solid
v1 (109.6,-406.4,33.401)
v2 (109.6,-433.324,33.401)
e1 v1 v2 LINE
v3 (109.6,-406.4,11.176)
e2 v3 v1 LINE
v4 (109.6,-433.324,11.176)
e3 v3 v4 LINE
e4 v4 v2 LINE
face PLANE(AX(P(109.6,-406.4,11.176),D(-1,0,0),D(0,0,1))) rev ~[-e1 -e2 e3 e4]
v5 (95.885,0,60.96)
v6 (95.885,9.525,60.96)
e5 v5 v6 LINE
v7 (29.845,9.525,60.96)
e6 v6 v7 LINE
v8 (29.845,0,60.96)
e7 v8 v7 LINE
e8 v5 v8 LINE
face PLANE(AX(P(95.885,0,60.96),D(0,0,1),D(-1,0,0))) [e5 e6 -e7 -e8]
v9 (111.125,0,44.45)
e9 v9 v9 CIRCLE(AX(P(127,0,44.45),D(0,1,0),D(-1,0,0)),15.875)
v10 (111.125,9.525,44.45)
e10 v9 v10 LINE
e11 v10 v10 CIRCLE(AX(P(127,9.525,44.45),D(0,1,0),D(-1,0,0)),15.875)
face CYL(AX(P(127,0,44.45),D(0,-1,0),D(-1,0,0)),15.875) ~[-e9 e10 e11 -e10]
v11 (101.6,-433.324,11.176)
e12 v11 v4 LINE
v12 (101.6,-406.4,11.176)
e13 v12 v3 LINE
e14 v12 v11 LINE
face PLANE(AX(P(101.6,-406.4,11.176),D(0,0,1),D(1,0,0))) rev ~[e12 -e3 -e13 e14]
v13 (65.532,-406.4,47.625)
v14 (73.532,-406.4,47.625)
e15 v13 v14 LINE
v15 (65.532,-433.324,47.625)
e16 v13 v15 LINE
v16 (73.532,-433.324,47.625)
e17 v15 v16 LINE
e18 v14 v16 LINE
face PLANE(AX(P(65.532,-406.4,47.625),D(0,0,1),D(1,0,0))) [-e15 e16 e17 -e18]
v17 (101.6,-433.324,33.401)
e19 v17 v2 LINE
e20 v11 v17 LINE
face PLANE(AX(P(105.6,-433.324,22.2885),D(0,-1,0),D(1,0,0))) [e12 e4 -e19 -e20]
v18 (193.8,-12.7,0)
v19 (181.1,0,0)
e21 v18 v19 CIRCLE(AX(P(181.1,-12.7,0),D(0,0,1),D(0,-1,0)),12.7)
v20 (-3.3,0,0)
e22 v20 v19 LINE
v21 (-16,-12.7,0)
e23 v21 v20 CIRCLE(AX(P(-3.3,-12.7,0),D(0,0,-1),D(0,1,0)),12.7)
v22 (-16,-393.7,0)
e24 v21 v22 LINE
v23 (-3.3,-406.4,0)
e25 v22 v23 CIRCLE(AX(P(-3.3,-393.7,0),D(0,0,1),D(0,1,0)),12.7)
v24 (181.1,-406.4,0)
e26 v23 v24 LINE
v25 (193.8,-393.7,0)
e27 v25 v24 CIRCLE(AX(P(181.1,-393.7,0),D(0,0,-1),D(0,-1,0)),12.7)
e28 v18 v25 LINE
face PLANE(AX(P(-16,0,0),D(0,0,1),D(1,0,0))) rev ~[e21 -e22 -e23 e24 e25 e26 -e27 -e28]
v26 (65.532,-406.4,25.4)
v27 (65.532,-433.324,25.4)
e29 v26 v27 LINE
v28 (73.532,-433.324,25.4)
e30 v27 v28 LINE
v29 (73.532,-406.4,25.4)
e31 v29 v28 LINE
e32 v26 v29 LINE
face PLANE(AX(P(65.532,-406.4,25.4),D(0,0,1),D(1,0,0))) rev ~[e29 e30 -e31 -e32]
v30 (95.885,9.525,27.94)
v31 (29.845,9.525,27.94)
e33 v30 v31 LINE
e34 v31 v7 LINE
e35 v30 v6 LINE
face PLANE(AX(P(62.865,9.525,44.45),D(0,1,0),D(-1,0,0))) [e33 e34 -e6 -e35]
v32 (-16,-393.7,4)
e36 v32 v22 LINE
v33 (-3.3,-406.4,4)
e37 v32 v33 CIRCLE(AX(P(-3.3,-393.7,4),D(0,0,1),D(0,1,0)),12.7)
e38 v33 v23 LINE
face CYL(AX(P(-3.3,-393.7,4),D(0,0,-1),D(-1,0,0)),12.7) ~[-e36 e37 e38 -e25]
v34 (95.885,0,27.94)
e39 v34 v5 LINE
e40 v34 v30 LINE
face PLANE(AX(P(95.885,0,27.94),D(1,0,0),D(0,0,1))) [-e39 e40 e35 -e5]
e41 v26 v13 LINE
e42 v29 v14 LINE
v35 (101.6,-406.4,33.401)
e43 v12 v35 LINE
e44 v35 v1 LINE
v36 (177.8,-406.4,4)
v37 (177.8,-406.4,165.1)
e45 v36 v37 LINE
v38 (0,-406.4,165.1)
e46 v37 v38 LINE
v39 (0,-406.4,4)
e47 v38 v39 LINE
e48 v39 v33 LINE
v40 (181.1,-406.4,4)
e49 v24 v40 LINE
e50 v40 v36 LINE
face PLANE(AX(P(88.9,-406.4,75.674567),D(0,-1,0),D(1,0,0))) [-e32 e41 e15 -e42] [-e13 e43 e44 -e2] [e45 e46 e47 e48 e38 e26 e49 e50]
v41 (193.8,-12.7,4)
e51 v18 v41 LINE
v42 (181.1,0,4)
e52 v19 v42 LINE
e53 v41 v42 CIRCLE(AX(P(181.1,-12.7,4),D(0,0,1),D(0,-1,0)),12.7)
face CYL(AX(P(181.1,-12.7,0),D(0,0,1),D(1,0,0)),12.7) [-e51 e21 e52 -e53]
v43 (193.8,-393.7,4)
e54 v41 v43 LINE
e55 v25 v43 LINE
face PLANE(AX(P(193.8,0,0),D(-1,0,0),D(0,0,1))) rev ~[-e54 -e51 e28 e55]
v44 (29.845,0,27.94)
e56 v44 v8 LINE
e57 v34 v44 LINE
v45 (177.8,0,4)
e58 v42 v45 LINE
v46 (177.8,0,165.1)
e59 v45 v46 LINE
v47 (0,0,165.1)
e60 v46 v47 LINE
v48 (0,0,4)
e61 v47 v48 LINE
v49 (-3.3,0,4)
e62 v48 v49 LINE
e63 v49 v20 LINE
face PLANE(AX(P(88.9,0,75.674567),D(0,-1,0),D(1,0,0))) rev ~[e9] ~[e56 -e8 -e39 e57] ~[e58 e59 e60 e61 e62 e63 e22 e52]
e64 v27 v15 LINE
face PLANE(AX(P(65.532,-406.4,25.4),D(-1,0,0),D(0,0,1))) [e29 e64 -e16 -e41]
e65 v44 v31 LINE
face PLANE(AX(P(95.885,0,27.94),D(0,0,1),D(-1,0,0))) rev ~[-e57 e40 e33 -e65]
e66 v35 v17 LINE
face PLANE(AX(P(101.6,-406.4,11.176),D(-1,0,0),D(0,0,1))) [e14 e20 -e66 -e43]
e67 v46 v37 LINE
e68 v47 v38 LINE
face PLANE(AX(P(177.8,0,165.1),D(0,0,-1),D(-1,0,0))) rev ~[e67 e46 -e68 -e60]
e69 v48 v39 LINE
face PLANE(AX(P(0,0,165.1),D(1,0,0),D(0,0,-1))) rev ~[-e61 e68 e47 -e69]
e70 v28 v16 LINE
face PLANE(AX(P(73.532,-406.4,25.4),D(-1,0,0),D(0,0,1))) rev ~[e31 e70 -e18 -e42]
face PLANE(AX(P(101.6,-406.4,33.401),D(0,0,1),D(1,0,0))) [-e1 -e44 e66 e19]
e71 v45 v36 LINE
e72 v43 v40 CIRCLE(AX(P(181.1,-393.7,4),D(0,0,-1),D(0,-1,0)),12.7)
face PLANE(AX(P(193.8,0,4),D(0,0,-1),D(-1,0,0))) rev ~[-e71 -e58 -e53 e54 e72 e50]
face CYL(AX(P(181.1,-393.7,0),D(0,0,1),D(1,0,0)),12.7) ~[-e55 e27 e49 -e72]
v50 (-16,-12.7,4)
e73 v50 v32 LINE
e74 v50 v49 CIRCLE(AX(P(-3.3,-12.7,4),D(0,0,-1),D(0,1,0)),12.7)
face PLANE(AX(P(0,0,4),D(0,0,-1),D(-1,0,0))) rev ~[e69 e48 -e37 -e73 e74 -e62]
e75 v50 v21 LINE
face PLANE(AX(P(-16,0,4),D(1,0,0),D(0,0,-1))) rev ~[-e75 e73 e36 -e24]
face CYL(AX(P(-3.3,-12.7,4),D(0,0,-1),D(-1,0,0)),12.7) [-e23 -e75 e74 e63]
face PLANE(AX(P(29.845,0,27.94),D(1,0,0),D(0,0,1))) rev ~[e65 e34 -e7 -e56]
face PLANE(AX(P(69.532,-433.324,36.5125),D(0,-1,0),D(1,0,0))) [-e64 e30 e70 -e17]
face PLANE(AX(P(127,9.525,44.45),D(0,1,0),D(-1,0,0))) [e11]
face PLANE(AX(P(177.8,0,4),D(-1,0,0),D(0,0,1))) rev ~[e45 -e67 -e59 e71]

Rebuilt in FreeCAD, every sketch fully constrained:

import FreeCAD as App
import Part
import Sketcher
Q = App.Units.Quantity


def edges_at(feature, points):
    """Names of the edges that pass closest to the given points."""
    edges = feature.Shape.Edges
    near = lambda p: min(range(len(edges)), key=lambda i: edges[i].distToShape(Part.Vertex(*p))[0])
    return sorted({f"Edge{near(p) + 1}" for p in points})

doc = App.newDocument("Part")
params = doc.addObject("Spreadsheet::Sheet", "Params")
for row, (alias, value) in enumerate([
    ("sketch1_width", "7 in"),
    ("pad1_length", "16 in"),
    ("fillet_radius", "0.5 in"),
    ("sketch2_height", "0.875 in"),
    ("pad2_length", "1.06 in"),
    ("sketch3_diameter", "1.25 in"),
    ("sketch3_width", "2.6 in"),
    ("sketch3_height", "1.3 in"),
    ("pad3_length", "0.375 in"),
], start=1):
    params.set(f"A{row}", alias)
    params.set(f"B{row}", "=" + value)
    params.setAlias(f"B{row}", alias)

body = doc.addObject("PartDesign::Body", "Body")

sketch1 = body.newObject("Sketcher::SketchObject", "Sketch")
sketch1.AttachmentSupport = (doc.getObject("XZ_Plane"), [""])
sketch1.MapMode = "FlatFace"
sketch1.addGeometry(Part.LineSegment(App.Vector(-16, 0, 0), App.Vector(193.8, 0, 0)), False)
sketch1.addGeometry(Part.LineSegment(App.Vector(193.8, 0, 0), App.Vector(193.8, 4, 0)), False)
sketch1.addGeometry(Part.LineSegment(App.Vector(193.8, 4, 0), App.Vector(177.8, 4, 0)), False)
sketch1.addGeometry(Part.LineSegment(App.Vector(177.8, 4, 0), App.Vector(177.8, 165.1, 0)), False)
sketch1.addGeometry(Part.LineSegment(App.Vector(177.8, 165.1, 0), App.Vector(0, 165.1, 0)), False)
sketch1.addGeometry(Part.LineSegment(App.Vector(0, 165.1, 0), App.Vector(0, 4, 0)), False)
sketch1.addGeometry(Part.LineSegment(App.Vector(0, 4, 0), App.Vector(-16, 4, 0)), False)
sketch1.addGeometry(Part.LineSegment(App.Vector(-16, 4, 0), App.Vector(-16, 0, 0)), False)
sketch1.addConstraint(Sketcher.Constraint("Coincident", 0, 2, 1, 1))
sketch1.addConstraint(Sketcher.Constraint("Coincident", 1, 2, 2, 1))
sketch1.addConstraint(Sketcher.Constraint("Coincident", 2, 2, 3, 1))
sketch1.addConstraint(Sketcher.Constraint("Coincident", 3, 2, 4, 1))
sketch1.addConstraint(Sketcher.Constraint("Coincident", 4, 2, 5, 1))
sketch1.addConstraint(Sketcher.Constraint("Coincident", 5, 2, 6, 1))
sketch1.addConstraint(Sketcher.Constraint("Coincident", 6, 2, 7, 1))
sketch1.addConstraint(Sketcher.Constraint("Coincident", 7, 2, 0, 1))
sketch1.addConstraint(Sketcher.Constraint("Horizontal", 0))
sketch1.addConstraint(Sketcher.Constraint("Vertical", 1))
sketch1.addConstraint(Sketcher.Constraint("Horizontal", 2))
sketch1.addConstraint(Sketcher.Constraint("Vertical", 3))
sketch1.addConstraint(Sketcher.Constraint("Horizontal", 4))
sketch1.addConstraint(Sketcher.Constraint("Vertical", 5))
sketch1.addConstraint(Sketcher.Constraint("Horizontal", 6))
sketch1.addConstraint(Sketcher.Constraint("Vertical", 7))
sketch1.addConstraint(Sketcher.Constraint("PointOnObject", 0, 2, -1))
sketch1.addConstraint(Sketcher.Constraint("PointOnObject", 4, 2, -2))
sketch1.addConstraint(Sketcher.Constraint("Horizontal", 2, 2, 5, 2))
sketch1.addConstraint(Sketcher.Constraint("Equal", 2, 6))
sketch1.addConstraint(Sketcher.Constraint("DistanceX", 4, 2, 4, 1, Q("7 in")))
sketch1.addConstraint(Sketcher.Constraint("DistanceY", -1, 1, 3, 2, Q("6.5 in")))
sketch1.addConstraint(Sketcher.Constraint("DistanceX", 0, 1, 0, 2, 209.8))
sketch1.addConstraint(Sketcher.Constraint("DistanceY", 1, 1, 1, 2, 4.0))
sketch1.setExpression("Constraints[20]", "Params.sketch1_width")
pad1 = body.newObject("PartDesign::Pad", "Pad")
pad1.Profile = sketch1
pad1.setExpression("Length", "Params.pad1_length")
doc.recompute()

fillet = body.newObject("PartDesign::Fillet", "Fillet")
fillet.Base = (pad1, edges_at(pad1, [
    (193.8, 0, 2),
    (193.8, -406.4, 2),
    (-16, -406.4, 2),
    (-16, 0, 2),
]))
fillet.setExpression("Radius", "Params.fillet_radius")

sketch2 = body.newObject("Sketcher::SketchObject", "Sketch001")
sketch2.AttachmentSupport = (doc.getObject("XZ_Plane"), [""])
sketch2.MapMode = "FlatFace"
sketch2.AttachmentOffset = App.Placement(App.Vector(0, 0, 16 * 25.4), App.Rotation())
sketch2.addGeometry(Part.LineSegment(App.Vector(66, 48, 0), App.Vector(66, 25, 0)), False)
sketch2.addGeometry(Part.LineSegment(App.Vector(66, 25, 0), App.Vector(74, 25, 0)), False)
sketch2.addGeometry(Part.LineSegment(App.Vector(74, 25, 0), App.Vector(74, 48, 0)), False)
sketch2.addGeometry(Part.LineSegment(App.Vector(74, 48, 0), App.Vector(66, 48, 0)), False)
sketch2.addGeometry(Part.LineSegment(App.Vector(102, 33, 0), App.Vector(102, 11, 0)), False)
sketch2.addGeometry(Part.LineSegment(App.Vector(102, 11, 0), App.Vector(110, 11, 0)), False)
sketch2.addGeometry(Part.LineSegment(App.Vector(110, 11, 0), App.Vector(110, 33, 0)), False)
sketch2.addGeometry(Part.LineSegment(App.Vector(110, 33, 0), App.Vector(102, 33, 0)), False)
sketch2.addConstraint(Sketcher.Constraint("Coincident", 0, 2, 1, 1))
sketch2.addConstraint(Sketcher.Constraint("Coincident", 1, 2, 2, 1))
sketch2.addConstraint(Sketcher.Constraint("Coincident", 2, 2, 3, 1))
sketch2.addConstraint(Sketcher.Constraint("Coincident", 3, 2, 0, 1))
sketch2.addConstraint(Sketcher.Constraint("Coincident", 4, 2, 5, 1))
sketch2.addConstraint(Sketcher.Constraint("Coincident", 5, 2, 6, 1))
sketch2.addConstraint(Sketcher.Constraint("Coincident", 6, 2, 7, 1))
sketch2.addConstraint(Sketcher.Constraint("Coincident", 7, 2, 4, 1))
sketch2.addConstraint(Sketcher.Constraint("Vertical", 0))
sketch2.addConstraint(Sketcher.Constraint("Horizontal", 1))
sketch2.addConstraint(Sketcher.Constraint("Vertical", 2))
sketch2.addConstraint(Sketcher.Constraint("Horizontal", 3))
sketch2.addConstraint(Sketcher.Constraint("Vertical", 4))
sketch2.addConstraint(Sketcher.Constraint("Horizontal", 5))
sketch2.addConstraint(Sketcher.Constraint("Vertical", 6))
sketch2.addConstraint(Sketcher.Constraint("Horizontal", 7))
sketch2.addConstraint(Sketcher.Constraint("Equal", 3, 5))
sketch2.addConstraint(Sketcher.Constraint("Equal", 2, 4))
sketch2.addConstraint(Sketcher.Constraint("DistanceY", -1, 1, 0, 2, Q("1 in")))
sketch2.addConstraint(Sketcher.Constraint("DistanceX", -1, 1, 4, 2, Q("4 in")))
sketch2.addConstraint(Sketcher.Constraint("DistanceY", 0, 2, 0, 1, Q("0.875 in")))
sketch2.addConstraint(Sketcher.Constraint("DistanceX", -1, 1, 0, 2, Q("2.58 in")))
sketch2.addConstraint(Sketcher.Constraint("DistanceY", -1, 1, 4, 2, Q("0.44 in")))
sketch2.addConstraint(Sketcher.Constraint("DistanceX", 1, 1, 1, 2, 8.0))
sketch2.setExpression("Constraints[20]", "Params.sketch2_height")
pad2 = body.newObject("PartDesign::Pad", "Pad001")
pad2.Profile = sketch2
pad2.setExpression("Length", "Params.pad2_length")

sketch3 = body.newObject("Sketcher::SketchObject", "Sketch002")
sketch3.AttachmentSupport = (doc.getObject("XZ_Plane"), [""])
sketch3.MapMode = "FlatFace"
sketch3.addGeometry(Part.LineSegment(App.Vector(96, 61, 0), App.Vector(96, 28, 0)), False)
sketch3.addGeometry(Part.LineSegment(App.Vector(96, 28, 0), App.Vector(30, 28, 0)), False)
sketch3.addGeometry(Part.LineSegment(App.Vector(30, 28, 0), App.Vector(30, 61, 0)), False)
sketch3.addGeometry(Part.LineSegment(App.Vector(30, 61, 0), App.Vector(96, 61, 0)), False)
sketch3.addGeometry(Part.Circle(App.Vector(127, 44, 0), App.Vector(0, 0, 1), 16), False)
sketch3.addConstraint(Sketcher.Constraint("Coincident", 0, 2, 1, 1))
sketch3.addConstraint(Sketcher.Constraint("Coincident", 1, 2, 2, 1))
sketch3.addConstraint(Sketcher.Constraint("Coincident", 2, 2, 3, 1))
sketch3.addConstraint(Sketcher.Constraint("Coincident", 3, 2, 0, 1))
sketch3.addConstraint(Sketcher.Constraint("Vertical", 0))
sketch3.addConstraint(Sketcher.Constraint("Horizontal", 1))
sketch3.addConstraint(Sketcher.Constraint("Vertical", 2))
sketch3.addConstraint(Sketcher.Constraint("Horizontal", 3))
sketch3.addConstraint(Sketcher.Constraint("Diameter", 4, Q("1.25 in")))
sketch3.addConstraint(Sketcher.Constraint("DistanceX", 1, 2, 1, 1, Q("2.6 in")))
sketch3.addConstraint(Sketcher.Constraint("DistanceY", 0, 2, 0, 1, Q("1.3 in")))
sketch3.addConstraint(Sketcher.Constraint("DistanceX", -1, 1, 4, 3, Q("5 in")))
sketch3.addConstraint(Sketcher.Constraint("DistanceY", -1, 1, 0, 2, Q("1.1 in")))
sketch3.addConstraint(Sketcher.Constraint("DistanceY", -1, 1, 4, 3, Q("1.75 in")))
sketch3.addConstraint(Sketcher.Constraint("DistanceX", -1, 1, 0, 2, Q("3.775 in")))
sketch3.setExpression("Constraints[8]", "Params.sketch3_diameter")
sketch3.setExpression("Constraints[9]", "Params.sketch3_width")
sketch3.setExpression("Constraints[10]", "Params.sketch3_height")
pad3 = body.newObject("PartDesign::Pad", "Pad002")
pad3.Profile = sketch3
pad3.setExpression("Length", "Params.pad3_length")
pad3.Reversed = True

doc.recompute()
